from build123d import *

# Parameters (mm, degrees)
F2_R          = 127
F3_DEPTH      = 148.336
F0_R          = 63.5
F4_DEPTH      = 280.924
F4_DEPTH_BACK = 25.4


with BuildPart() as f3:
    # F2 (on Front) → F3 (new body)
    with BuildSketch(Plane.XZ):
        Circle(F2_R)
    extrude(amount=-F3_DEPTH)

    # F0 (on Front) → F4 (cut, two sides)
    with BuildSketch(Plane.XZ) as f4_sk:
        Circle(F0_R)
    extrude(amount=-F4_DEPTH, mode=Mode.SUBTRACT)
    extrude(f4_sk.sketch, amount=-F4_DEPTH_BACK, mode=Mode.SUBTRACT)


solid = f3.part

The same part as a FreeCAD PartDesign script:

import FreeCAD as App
import Part
import Sketcher

V = App.Vector
Q = App.Units.Quantity

doc = App.newDocument("Part")
body = doc.addObject("PartDesign::Body", "Body")

# Sketch on XZ plane
sketch1 = body.newObject("Sketcher::SketchObject", "Sketch")
sketch1.AttachmentSupport = (doc.getObject("XZ_Plane"), [""])
sketch1.MapMode = "FlatFace"
sketch1.addGeometry(Part.Circle(V(0, 0, 0), V(0, 0, 1), 127), False)
sketch1.addConstraint(Sketcher.Constraint("Coincident", 0, 3, -1, 1))
sketch1.addConstraint(Sketcher.Constraint("Diameter", 0, Q("10 in")))
pad1 = body.newObject("PartDesign::Pad", "Pad")
pad1.Profile = sketch1
pad1.Length = Q("5.84 in")
pad1.Reversed = True

# Sketch on XZ plane
sketch2 = body.newObject("Sketcher::SketchObject", "Sketch001")
sketch2.AttachmentSupport = (doc.getObject("XZ_Plane"), [""])
sketch2.MapMode = "FlatFace"
sketch2.addGeometry(Part.Circle(V(0, 0, 0), V(0, 0, 1), 63.5), False)
sketch2.addConstraint(Sketcher.Constraint("Coincident", 0, 3, -1, 1))
sketch2.addConstraint(Sketcher.Constraint("Diameter", 0, Q("5 in")))
pocket1 = body.newObject("PartDesign::Pocket", "Pocket")
pocket1.Profile = sketch2
pocket1.Length = Q("11.06 in")
pocket2 = body.newObject("PartDesign::Pocket", "Pocket001")
pocket2.Profile = sketch2
pocket2.Length = Q("1 in")

doc.recompute()
